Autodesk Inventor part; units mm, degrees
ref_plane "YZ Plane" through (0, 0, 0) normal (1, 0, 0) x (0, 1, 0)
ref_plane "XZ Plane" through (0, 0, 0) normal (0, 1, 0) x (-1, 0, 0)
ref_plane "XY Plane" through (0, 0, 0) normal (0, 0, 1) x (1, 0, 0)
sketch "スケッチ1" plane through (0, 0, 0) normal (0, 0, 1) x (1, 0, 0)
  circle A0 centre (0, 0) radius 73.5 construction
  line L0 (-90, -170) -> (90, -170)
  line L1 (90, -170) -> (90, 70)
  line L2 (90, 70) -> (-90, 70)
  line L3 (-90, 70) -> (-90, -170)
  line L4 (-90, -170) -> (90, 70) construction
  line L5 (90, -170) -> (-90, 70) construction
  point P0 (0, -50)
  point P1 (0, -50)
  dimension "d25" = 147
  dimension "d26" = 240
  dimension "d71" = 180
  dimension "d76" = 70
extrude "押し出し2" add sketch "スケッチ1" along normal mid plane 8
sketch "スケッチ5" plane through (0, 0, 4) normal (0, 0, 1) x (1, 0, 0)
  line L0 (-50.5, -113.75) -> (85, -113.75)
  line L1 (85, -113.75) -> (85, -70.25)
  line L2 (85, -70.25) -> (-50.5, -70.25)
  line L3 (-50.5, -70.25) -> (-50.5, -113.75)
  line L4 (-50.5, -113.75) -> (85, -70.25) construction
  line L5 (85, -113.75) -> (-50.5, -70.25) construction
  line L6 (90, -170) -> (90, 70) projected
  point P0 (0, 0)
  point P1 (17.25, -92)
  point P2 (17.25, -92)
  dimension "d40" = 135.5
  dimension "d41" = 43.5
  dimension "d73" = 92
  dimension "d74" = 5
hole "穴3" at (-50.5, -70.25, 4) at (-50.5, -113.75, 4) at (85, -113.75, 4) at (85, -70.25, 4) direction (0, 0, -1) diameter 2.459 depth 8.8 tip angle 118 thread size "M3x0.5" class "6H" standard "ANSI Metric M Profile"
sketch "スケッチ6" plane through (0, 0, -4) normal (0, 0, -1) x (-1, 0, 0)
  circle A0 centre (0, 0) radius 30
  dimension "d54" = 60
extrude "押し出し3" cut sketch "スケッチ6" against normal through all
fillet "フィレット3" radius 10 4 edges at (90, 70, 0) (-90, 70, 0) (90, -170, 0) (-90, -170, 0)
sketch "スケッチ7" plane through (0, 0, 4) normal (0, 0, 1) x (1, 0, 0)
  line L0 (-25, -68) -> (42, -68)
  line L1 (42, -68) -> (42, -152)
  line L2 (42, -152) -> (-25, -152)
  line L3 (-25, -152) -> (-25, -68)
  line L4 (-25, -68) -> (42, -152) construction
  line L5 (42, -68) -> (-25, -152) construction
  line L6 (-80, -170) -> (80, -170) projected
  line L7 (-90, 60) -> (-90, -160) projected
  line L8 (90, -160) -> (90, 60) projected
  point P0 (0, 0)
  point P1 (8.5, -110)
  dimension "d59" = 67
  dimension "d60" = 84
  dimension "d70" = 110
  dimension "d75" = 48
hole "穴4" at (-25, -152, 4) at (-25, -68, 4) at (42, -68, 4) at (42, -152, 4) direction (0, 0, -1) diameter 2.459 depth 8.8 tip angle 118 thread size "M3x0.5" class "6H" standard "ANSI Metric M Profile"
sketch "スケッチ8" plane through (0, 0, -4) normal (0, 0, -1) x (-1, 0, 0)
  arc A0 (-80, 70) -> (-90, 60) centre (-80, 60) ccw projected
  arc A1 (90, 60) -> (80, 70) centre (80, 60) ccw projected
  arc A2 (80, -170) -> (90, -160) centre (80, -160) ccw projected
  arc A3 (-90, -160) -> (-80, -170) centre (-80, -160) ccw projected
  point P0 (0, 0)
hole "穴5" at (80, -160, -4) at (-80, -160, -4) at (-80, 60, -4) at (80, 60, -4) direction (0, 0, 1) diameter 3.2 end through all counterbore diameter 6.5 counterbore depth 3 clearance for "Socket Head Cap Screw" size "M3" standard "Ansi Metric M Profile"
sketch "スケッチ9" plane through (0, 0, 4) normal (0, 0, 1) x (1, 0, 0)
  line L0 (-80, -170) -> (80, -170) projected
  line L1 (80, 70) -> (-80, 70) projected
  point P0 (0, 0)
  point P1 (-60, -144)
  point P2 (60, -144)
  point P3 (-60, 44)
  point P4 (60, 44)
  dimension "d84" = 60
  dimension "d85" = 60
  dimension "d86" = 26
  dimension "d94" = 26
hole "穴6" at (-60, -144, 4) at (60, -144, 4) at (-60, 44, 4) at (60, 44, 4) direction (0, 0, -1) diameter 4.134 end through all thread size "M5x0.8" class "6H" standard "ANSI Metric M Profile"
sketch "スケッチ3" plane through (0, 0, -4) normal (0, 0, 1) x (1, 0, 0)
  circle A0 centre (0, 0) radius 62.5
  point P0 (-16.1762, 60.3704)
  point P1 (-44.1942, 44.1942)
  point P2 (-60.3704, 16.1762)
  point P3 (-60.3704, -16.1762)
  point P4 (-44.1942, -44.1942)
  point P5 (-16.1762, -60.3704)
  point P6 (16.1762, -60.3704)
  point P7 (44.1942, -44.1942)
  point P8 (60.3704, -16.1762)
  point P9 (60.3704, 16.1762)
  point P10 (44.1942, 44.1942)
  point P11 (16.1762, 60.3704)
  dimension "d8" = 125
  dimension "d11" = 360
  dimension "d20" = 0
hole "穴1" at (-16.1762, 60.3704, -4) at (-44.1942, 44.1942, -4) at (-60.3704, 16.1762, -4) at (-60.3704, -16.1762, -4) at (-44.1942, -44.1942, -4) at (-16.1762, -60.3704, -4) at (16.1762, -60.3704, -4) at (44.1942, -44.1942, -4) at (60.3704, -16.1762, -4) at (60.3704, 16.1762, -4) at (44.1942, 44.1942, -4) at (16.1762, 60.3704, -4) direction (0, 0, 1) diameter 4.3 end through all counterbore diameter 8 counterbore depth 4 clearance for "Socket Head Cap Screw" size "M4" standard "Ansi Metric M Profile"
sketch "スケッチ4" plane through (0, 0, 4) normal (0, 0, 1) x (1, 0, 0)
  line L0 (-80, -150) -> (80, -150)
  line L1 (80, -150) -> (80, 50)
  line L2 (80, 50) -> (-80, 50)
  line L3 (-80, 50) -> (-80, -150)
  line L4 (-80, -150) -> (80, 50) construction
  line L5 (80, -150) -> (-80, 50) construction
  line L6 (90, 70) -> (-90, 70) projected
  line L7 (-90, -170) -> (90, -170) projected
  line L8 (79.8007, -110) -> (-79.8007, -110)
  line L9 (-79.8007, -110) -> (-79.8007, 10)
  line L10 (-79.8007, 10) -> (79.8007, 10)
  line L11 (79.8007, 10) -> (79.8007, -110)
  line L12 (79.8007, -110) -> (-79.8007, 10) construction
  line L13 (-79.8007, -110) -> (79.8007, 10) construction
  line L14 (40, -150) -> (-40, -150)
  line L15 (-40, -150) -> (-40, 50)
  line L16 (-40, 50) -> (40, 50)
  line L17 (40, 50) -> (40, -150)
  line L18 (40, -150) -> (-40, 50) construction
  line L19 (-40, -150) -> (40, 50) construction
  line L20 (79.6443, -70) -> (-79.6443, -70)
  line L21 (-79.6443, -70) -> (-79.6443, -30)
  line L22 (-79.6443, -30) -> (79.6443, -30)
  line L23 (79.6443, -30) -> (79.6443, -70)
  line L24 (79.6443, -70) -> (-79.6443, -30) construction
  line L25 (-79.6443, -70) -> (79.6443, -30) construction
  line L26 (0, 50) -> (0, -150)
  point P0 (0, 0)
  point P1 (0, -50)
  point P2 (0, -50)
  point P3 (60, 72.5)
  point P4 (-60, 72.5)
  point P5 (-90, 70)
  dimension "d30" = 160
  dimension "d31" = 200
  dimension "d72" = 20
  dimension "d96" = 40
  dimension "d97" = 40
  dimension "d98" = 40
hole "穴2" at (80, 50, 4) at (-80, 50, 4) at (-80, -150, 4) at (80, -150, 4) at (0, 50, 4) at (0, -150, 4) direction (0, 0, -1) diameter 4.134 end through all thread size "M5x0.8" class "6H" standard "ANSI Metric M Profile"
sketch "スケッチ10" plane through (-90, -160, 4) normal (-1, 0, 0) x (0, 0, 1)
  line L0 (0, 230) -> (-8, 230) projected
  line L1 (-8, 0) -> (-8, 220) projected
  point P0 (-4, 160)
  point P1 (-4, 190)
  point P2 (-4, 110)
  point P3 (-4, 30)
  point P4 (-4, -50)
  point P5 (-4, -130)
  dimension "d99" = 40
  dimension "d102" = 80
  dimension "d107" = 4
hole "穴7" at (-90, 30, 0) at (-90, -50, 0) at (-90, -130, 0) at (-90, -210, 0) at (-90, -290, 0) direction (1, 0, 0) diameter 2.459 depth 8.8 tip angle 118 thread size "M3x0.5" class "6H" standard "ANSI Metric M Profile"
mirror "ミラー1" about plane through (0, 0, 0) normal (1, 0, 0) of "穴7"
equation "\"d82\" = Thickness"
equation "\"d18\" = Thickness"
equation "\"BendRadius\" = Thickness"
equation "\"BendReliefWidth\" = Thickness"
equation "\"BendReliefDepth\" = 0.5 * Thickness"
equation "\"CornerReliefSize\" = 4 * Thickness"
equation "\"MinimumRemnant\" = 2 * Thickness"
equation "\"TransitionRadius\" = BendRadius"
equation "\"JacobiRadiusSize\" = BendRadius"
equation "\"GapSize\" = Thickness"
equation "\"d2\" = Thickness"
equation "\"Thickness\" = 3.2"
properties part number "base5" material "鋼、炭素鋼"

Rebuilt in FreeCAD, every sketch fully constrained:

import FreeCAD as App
import Part
import Sketcher
Q = App.Units.Quantity


def edges_at(feature, points):
    """Names of the edges that pass closest to the given points."""
    edges = feature.Shape.Edges
    near = lambda p: min(range(len(edges)), key=lambda i: edges[i].distToShape(Part.Vertex(*p))[0])
    return sorted({f"Edge{near(p) + 1}" for p in points})


def add_polygon(sketch, points):
    """Adds a closed chain of lines whose ends are joined by coincident constraints."""
    first, n = sketch.GeometryCount, len(points)
    for a, b in zip(points, points[1:] + points[:1]):
        sketch.addGeometry(Part.LineSegment(App.Vector(*a, 0), App.Vector(*b, 0)), False)
    for i in range(n):
        sketch.addConstraint(Sketcher.Constraint("Coincident", first + i, 2, first + (i + 1) % n, 1))

doc = App.newDocument("Part")
body = doc.addObject("PartDesign::Body", "Body")

sketch1 = doc.addObject("Sketcher::SketchObject", "Sketch")
body.addObject(sketch1)
sketch1.AttachmentSupport = (doc.XY_Plane, [""])
sketch1.MapMode = "FlatFace"
add_polygon(sketch1, [(-90, 70), (-90, -170), (90, -170), (90, 70)])
sketch1.addConstraint(Sketcher.Constraint("Vertical", 0))
sketch1.addConstraint(Sketcher.Constraint("Horizontal", 1))
sketch1.addConstraint(Sketcher.Constraint("Vertical", 2))
sketch1.addConstraint(Sketcher.Constraint("Horizontal", 3))
sketch1.addConstraint(Sketcher.Constraint("DistanceX", 1, 1, 1, 2, Q("180 mm")))
sketch1.addConstraint(Sketcher.Constraint("DistanceY", 0, 2, 0, 1, Q("240 mm")))
sketch1.addConstraint(Sketcher.Constraint("DistanceY", -1, 1, 2, 2, Q("70 mm")))
sketch1.addConstraint(Sketcher.Constraint("DistanceX", 0, 2, -1, 1, Q("90 mm")))
pad1 = doc.addObject("PartDesign::Pad", "Pad")
body.addObject(pad1)
pad1.Profile = sketch1
pad1.Length = 8
pad1.Midplane = True

sketch2 = doc.addObject("Sketcher::SketchObject", "Sketch001")
body.addObject(sketch2)
sketch2.AttachmentSupport = (doc.XY_Plane, [""])
sketch2.MapMode = "FlatFace"
sketch2.AttachmentOffset = App.Placement(App.Vector(0, 0, 4), App.Rotation())
sketch2.addGeometry(Part.Circle(App.Vector(-50.5, -70.2, 0), App.Vector(0, 0, 1), 1.2), False)
sketch2.addGeometry(Part.Circle(App.Vector(-50.5, -113.8, 0), App.Vector(0, 0, 1), 1.2), False)
sketch2.addGeometry(Part.Circle(App.Vector(85, -113.8, 0), App.Vector(0, 0, 1), 1.2), False)
sketch2.addGeometry(Part.Circle(App.Vector(85, -70.2, 0), App.Vector(0, 0, 1), 1.2), False)
sketch2.addConstraint(Sketcher.Constraint("Equal", 0, 1))
sketch2.addConstraint(Sketcher.Constraint("Equal", 1, 2))
sketch2.addConstraint(Sketcher.Constraint("Equal", 2, 3))
sketch2.addConstraint(Sketcher.Constraint("Horizontal", 1, 3, 2, 3))
sketch2.addConstraint(Sketcher.Constraint("Horizontal", 0, 3, 3, 3))
sketch2.addConstraint(Sketcher.Constraint("Vertical", 0, 3, 1, 3))
sketch2.addConstraint(Sketcher.Constraint("Vertical", 2, 3, 3, 3))
sketch2.addConstraint(Sketcher.Constraint("Diameter", 0, Q("2.459 mm")))
sketch2.addConstraint(Sketcher.Constraint("DistanceX", -1, 1, 2, 3, Q("85 mm")))
sketch2.addConstraint(Sketcher.Constraint("DistanceX", 0, 3, -1, 1, Q("50.5 mm")))
sketch2.addConstraint(Sketcher.Constraint("DistanceY", 1, 3, 0, 3, Q("43.5 mm")))
sketch2.addConstraint(Sketcher.Constraint("DistanceY", 0, 3, -1, 1, Q("70.25 mm")))
doc.recompute()
hole = doc.addObject("PartDesign::Hole", "Hole")
body.addObject(hole)
hole.Profile = sketch2
hole.ThreadType = "None"
hole.Diameter = 2.459
hole.DepthType = "Dimension"
hole.Depth = 8.8
hole.DrillPoint = "Angled"
hole.DrillPointAngle = 118

sketch3 = doc.addObject("Sketcher::SketchObject", "Sketch002")
body.addObject(sketch3)
sketch3.AttachmentSupport = (doc.XY_Plane, [""])
sketch3.MapMode = "FlatFace"
sketch3.AttachmentOffset = App.Placement(App.Vector(0, 0, -4), App.Rotation())
sketch3.addGeometry(Part.Circle(App.Vector(0, 0, 0), App.Vector(0, 0, 1), 30), False)
sketch3.addConstraint(Sketcher.Constraint("Coincident", 0, 3, -1, 1))
sketch3.addConstraint(Sketcher.Constraint("Diameter", 0, Q("60 mm")))
pocket1 = doc.addObject("PartDesign::Pocket", "Pocket")
body.addObject(pocket1)
pocket1.Profile = sketch3
pocket1.Type = "ThroughAll"
pocket1.Reversed = True
doc.recompute()

fillet = doc.addObject("PartDesign::Fillet", "Fillet")
body.addObject(fillet)
fillet.Base = (pocket1, edges_at(pocket1, [
    (90, 70, 0),
    (-90, 70, 0),
    (90, -170, 0),
    (-90, -170, 0),
]))
fillet.Radius = 10

sketch4 = doc.addObject("Sketcher::SketchObject", "Sketch003")
body.addObject(sketch4)
sketch4.AttachmentSupport = (doc.XY_Plane, [""])
sketch4.MapMode = "FlatFace"
sketch4.AttachmentOffset = App.Placement(App.Vector(0, 0, 4), App.Rotation())
sketch4.addGeometry(Part.Circle(App.Vector(-25, -152, 0), App.Vector(0, 0, 1), 1.2), False)
sketch4.addGeometry(Part.Circle(App.Vector(-25, -68, 0), App.Vector(0, 0, 1), 1.2), False)
sketch4.addGeometry(Part.Circle(App.Vector(42, -68, 0), App.Vector(0, 0, 1), 1.2), False)
sketch4.addGeometry(Part.Circle(App.Vector(42, -152, 0), App.Vector(0, 0, 1), 1.2), False)
sketch4.addConstraint(Sketcher.Constraint("Equal", 0, 1))
sketch4.addConstraint(Sketcher.Constraint("Equal", 1, 2))
sketch4.addConstraint(Sketcher.Constraint("Equal", 2, 3))
sketch4.addConstraint(Sketcher.Constraint("Horizontal", 1, 3, 2, 3))
sketch4.addConstraint(Sketcher.Constraint("Horizontal", 0, 3, 3, 3))
sketch4.addConstraint(Sketcher.Constraint("Vertical", 0, 3, 1, 3))
sketch4.addConstraint(Sketcher.Constraint("Vertical", 2, 3, 3, 3))
sketch4.addConstraint(Sketcher.Constraint("Diameter", 0, Q("2.459 mm")))
sketch4.addConstraint(Sketcher.Constraint("DistanceX", 0, 3, -1, 1, Q("25 mm")))
sketch4.addConstraint(Sketcher.Constraint("DistanceY", 0, 3, -1, 1, Q("152 mm")))
sketch4.addConstraint(Sketcher.Constraint("DistanceY", 1, 3, -1, 1, Q("68 mm")))
sketch4.addConstraint(Sketcher.Constraint("DistanceX", -1, 1, 2, 3, Q("42 mm")))
doc.recompute()
hole2 = doc.addObject("PartDesign::Hole", "Hole001")
body.addObject(hole2)
hole2.Profile = sketch4
hole2.ThreadType = "None"
hole2.Diameter = 2.459
hole2.DepthType = "Dimension"
hole2.Depth = 8.8
hole2.DrillPoint = "Angled"
hole2.DrillPointAngle = 118

sketch5 = doc.addObject("Sketcher::SketchObject", "Sketch004")
body.addObject(sketch5)
sketch5.AttachmentSupport = (doc.XY_Plane, [""])
sketch5.MapMode = "FlatFace"
sketch5.AttachmentOffset = App.Placement(App.Vector(0, 0, -4), App.Rotation())
sketch5.addGeometry(Part.Circle(App.Vector(80, -160, 0), App.Vector(0, 0, 1), 1.6), False)
sketch5.addGeometry(Part.Circle(App.Vector(-80, -160, 0), App.Vector(0, 0, 1), 1.6), False)
sketch5.addGeometry(Part.Circle(App.Vector(-80, 60, 0), App.Vector(0, 0, 1), 1.6), False)
sketch5.addGeometry(Part.Circle(App.Vector(80, 60, 0), App.Vector(0, 0, 1), 1.6), False)
sketch5.addConstraint(Sketcher.Constraint("Equal", 0, 1))
sketch5.addConstraint(Sketcher.Constraint("Equal", 1, 2))
sketch5.addConstraint(Sketcher.Constraint("Equal", 2, 3))
sketch5.addConstraint(Sketcher.Constraint("Symmetric", 0, 3, 1, 3, -2))
sketch5.addConstraint(Sketcher.Constraint("Symmetric", 2, 3, 3, 3, -2))
sketch5.addConstraint(Sketcher.Constraint("Vertical", 1, 3, 2, 3))
sketch5.addConstraint(Sketcher.Constraint("Diameter", 0, Q("3.2 mm")))
sketch5.addConstraint(Sketcher.Constraint("DistanceX", -1, 1, 0, 3, Q("80 mm")))
sketch5.addConstraint(Sketcher.Constraint("DistanceY", 0, 3, -1, 1, Q("160 mm")))
sketch5.addConstraint(Sketcher.Constraint("DistanceY", -1, 1, 2, 3, Q("60 mm")))
doc.recompute()
hole3 = doc.addObject("PartDesign::Hole", "Hole002")
body.addObject(hole3)
hole3.Profile = sketch5
hole3.ThreadType = "None"
hole3.Diameter = 3.2
hole3.DepthType = "ThroughAll"
hole3.HoleCutType = "Counterbore"
hole3.HoleCutDiameter = 6.5
hole3.HoleCutDepth = 3
hole3.Reversed = True

sketch6 = doc.addObject("Sketcher::SketchObject", "Sketch005")
body.addObject(sketch6)
sketch6.AttachmentSupport = (doc.XY_Plane, [""])
sketch6.MapMode = "FlatFace"
sketch6.AttachmentOffset = App.Placement(App.Vector(0, 0, 4), App.Rotation())
sketch6.addGeometry(Part.Circle(App.Vector(-60, -144, 0), App.Vector(0, 0, 1), 2.1), False)
sketch6.addGeometry(Part.Circle(App.Vector(60, -144, 0), App.Vector(0, 0, 1), 2.1), False)
sketch6.addGeometry(Part.Circle(App.Vector(-60, 44, 0), App.Vector(0, 0, 1), 2.1), False)
sketch6.addGeometry(Part.Circle(App.Vector(60, 44, 0), App.Vector(0, 0, 1), 2.1), False)
sketch6.addConstraint(Sketcher.Constraint("Equal", 0, 1))
sketch6.addConstraint(Sketcher.Constraint("Equal", 1, 2))
sketch6.addConstraint(Sketcher.Constraint("Equal", 2, 3))
sketch6.addConstraint(Sketcher.Constraint("Symmetric", 0, 3, 1, 3, -2))
sketch6.addConstraint(Sketcher.Constraint("Symmetric", 2, 3, 3, 3, -2))
sketch6.addConstraint(Sketcher.Constraint("Vertical", 0, 3, 2, 3))
sketch6.addConstraint(Sketcher.Constraint("Diameter", 0, Q("4.134 mm")))
sketch6.addConstraint(Sketcher.Constraint("DistanceX", 0, 3, -1, 1, Q("60 mm")))
sketch6.addConstraint(Sketcher.Constraint("DistanceY", 0, 3, -1, 1, Q("144 mm")))
sketch6.addConstraint(Sketcher.Constraint("DistanceY", -1, 1, 2, 3, Q("44 mm")))
doc.recompute()
hole4 = doc.addObject("PartDesign::Hole", "Hole003")
body.addObject(hole4)
hole4.Profile = sketch6
hole4.ThreadType = "None"
hole4.Diameter = 4.134
hole4.DepthType = "ThroughAll"

sketch7 = doc.addObject("Sketcher::SketchObject", "Sketch006")
body.addObject(sketch7)
sketch7.AttachmentSupport = (doc.XY_Plane, [""])
sketch7.MapMode = "FlatFace"
sketch7.AttachmentOffset = App.Placement(App.Vector(0, 0, -4), App.Rotation())
sketch7.addGeometry(Part.Circle(App.Vector(-16.2, 60.4, 0), App.Vector(0, 0, 1), 2.1), False)
sketch7.addGeometry(Part.Circle(App.Vector(-44.2, 44.2, 0), App.Vector(0, 0, 1), 2.1), False)
sketch7.addGeometry(Part.Circle(App.Vector(-60.4, 16.2, 0), App.Vector(0, 0, 1), 2.1), False)
sketch7.addGeometry(Part.Circle(App.Vector(-60.4, -16.2, 0), App.Vector(0, 0, 1), 2.1), False)
sketch7.addGeometry(Part.Circle(App.Vector(-44.2, -44.2, 0), App.Vector(0, 0, 1), 2.1), False)
sketch7.addGeometry(Part.Circle(App.Vector(-16.2, -60.4, 0), App.Vector(0, 0, 1), 2.1), False)
sketch7.addGeometry(Part.Circle(App.Vector(16.2, -60.4, 0), App.Vector(0, 0, 1), 2.1), False)
sketch7.addGeometry(Part.Circle(App.Vector(44.2, -44.2, 0), App.Vector(0, 0, 1), 2.1), False)
sketch7.addGeometry(Part.Circle(App.Vector(60.4, -16.2, 0), App.Vector(0, 0, 1), 2.1), False)
sketch7.addGeometry(Part.Circle(App.Vector(60.4, 16.2, 0), App.Vector(0, 0, 1), 2.1), False)
sketch7.addGeometry(Part.Circle(App.Vector(44.2, 44.2, 0), App.Vector(0, 0, 1), 2.1), False)
sketch7.addGeometry(Part.Circle(App.Vector(16.2, 60.4, 0), App.Vector(0, 0, 1), 2.1), False)
sketch7.addConstraint(Sketcher.Constraint("Equal", 0, 1))
sketch7.addConstraint(Sketcher.Constraint("Equal", 1, 2))
sketch7.addConstraint(Sketcher.Constraint("Equal", 2, 3))
sketch7.addConstraint(Sketcher.Constraint("Equal", 3, 4))
sketch7.addConstraint(Sketcher.Constraint("Equal", 4, 5))
sketch7.addConstraint(Sketcher.Constraint("Equal", 5, 6))
sketch7.addConstraint(Sketcher.Constraint("Equal", 6, 7))
sketch7.addConstraint(Sketcher.Constraint("Equal", 7, 8))
sketch7.addConstraint(Sketcher.Constraint("Equal", 8, 9))
sketch7.addConstraint(Sketcher.Constraint("Equal", 9, 10))
sketch7.addConstraint(Sketcher.Constraint("Equal", 10, 11))
sketch7.addConstraint(Sketcher.Constraint("Symmetric", 0, 3, 6, 3, -1, 1))
sketch7.addConstraint(Sketcher.Constraint("Symmetric", 1, 3, 7, 3, -1, 1))
sketch7.addConstraint(Sketcher.Constraint("Symmetric", 2, 3, 8, 3, -1, 1))
sketch7.addConstraint(Sketcher.Constraint("Symmetric", 3, 3, 9, 3, -1, 1))
sketch7.addConstraint(Sketcher.Constraint("Symmetric", 4, 3, 10, 3, -1, 1))
sketch7.addConstraint(Sketcher.Constraint("Symmetric", 5, 3, 11, 3, -1, 1))
sketch7.addConstraint(Sketcher.Constraint("Symmetric", 5, 3, 6, 3, -2))
sketch7.addConstraint(Sketcher.Constraint("Symmetric", 4, 3, 7, 3, -2))
sketch7.addConstraint(Sketcher.Constraint("Symmetric", 3, 3, 8, 3, -2))
sketch7.addConstraint(Sketcher.Constraint("Diameter", 0, Q("4.3 mm")))
sketch7.addConstraint(Sketcher.Constraint("DistanceX", 1, 3, 0, 3, Q("28.018 mm")))
sketch7.addConstraint(Sketcher.Constraint("DistanceY", 2, 3, 1, 3, Q("28.018 mm")))
sketch7.addConstraint(Sketcher.Constraint("DistanceX", 0, 3, -1, 1, Q("16.1762 mm")))
sketch7.addConstraint(Sketcher.Constraint("DistanceY", -1, 1, 0, 3, Q("60.3704 mm")))
sketch7.addConstraint(Sketcher.Constraint("DistanceY", -1, 1, 1, 3, Q("44.1942 mm")))
sketch7.addConstraint(Sketcher.Constraint("DistanceX", 2, 3, -1, 1, Q("60.3704 mm")))
doc.recompute()
hole5 = doc.addObject("PartDesign::Hole", "Hole004")
body.addObject(hole5)
hole5.Profile = sketch7
hole5.ThreadType = "None"
hole5.Diameter = 4.3
hole5.DepthType = "ThroughAll"
hole5.HoleCutType = "Counterbore"
hole5.HoleCutDiameter = 8
hole5.HoleCutDepth = 4
hole5.Reversed = True

sketch8 = doc.addObject("Sketcher::SketchObject", "Sketch007")
body.addObject(sketch8)
sketch8.AttachmentSupport = (doc.XY_Plane, [""])
sketch8.MapMode = "FlatFace"
sketch8.AttachmentOffset = App.Placement(App.Vector(0, 0, 4), App.Rotation())
sketch8.addGeometry(Part.Circle(App.Vector(80, 50, 0), App.Vector(0, 0, 1), 2.1), False)
sketch8.addGeometry(Part.Circle(App.Vector(-80, 50, 0), App.Vector(0, 0, 1), 2.1), False)
sketch8.addGeometry(Part.Circle(App.Vector(-80, -150, 0), App.Vector(0, 0, 1), 2.1), False)
sketch8.addGeometry(Part.Circle(App.Vector(80, -150, 0), App.Vector(0, 0, 1), 2.1), False)
sketch8.addGeometry(Part.Circle(App.Vector(0, 50, 0), App.Vector(0, 0, 1), 2.1), False)
sketch8.addGeometry(Part.Circle(App.Vector(0, -150, 0), App.Vector(0, 0, 1), 2.1), False)
sketch8.addConstraint(Sketcher.Constraint("Equal", 0, 1))
sketch8.addConstraint(Sketcher.Constraint("Equal", 1, 2))
sketch8.addConstraint(Sketcher.Constraint("Equal", 2, 3))
sketch8.addConstraint(Sketcher.Constraint("Equal", 3, 4))
sketch8.addConstraint(Sketcher.Constraint("Equal", 4, 5))
sketch8.addConstraint(Sketcher.Constraint("Symmetric", 0, 3, 1, 3, -2))
sketch8.addConstraint(Sketcher.Constraint("Symmetric", 2, 3, 3, 3, -2))
sketch8.addConstraint(Sketcher.Constraint("PointOnObject", 4, 3, -2))
sketch8.addConstraint(Sketcher.Constraint("PointOnObject", 5, 3, -2))
sketch8.addConstraint(Sketcher.Constraint("Horizontal", 1, 3, 4, 3))
sketch8.addConstraint(Sketcher.Constraint("Horizontal", 3, 3, 5, 3))
sketch8.addConstraint(Sketcher.Constraint("Vertical", 1, 3, 2, 3))
sketch8.addConstraint(Sketcher.Constraint("Diameter", 0, Q("4.134 mm")))
sketch8.addConstraint(Sketcher.Constraint("DistanceX", -1, 1, 0, 3, Q("80 mm")))
sketch8.addConstraint(Sketcher.Constraint("DistanceY", -1, 1, 0, 3, Q("50 mm")))
sketch8.addConstraint(Sketcher.Constraint("DistanceY", 2, 3, -1, 1, Q("150 mm")))
doc.recompute()
hole6 = doc.addObject("PartDesign::Hole", "Hole005")
body.addObject(hole6)
hole6.Profile = sketch8
hole6.ThreadType = "None"
hole6.Diameter = 4.134
hole6.DepthType = "ThroughAll"

sketch9 = doc.addObject("Sketcher::SketchObject", "Sketch008")
body.addObject(sketch9)
sketch9.AttachmentSupport = (doc.YZ_Plane, [""])
sketch9.MapMode = "FlatFace"
sketch9.AttachmentOffset = App.Placement(App.Vector(0, 0, -90), App.Rotation())
sketch9.addGeometry(Part.Circle(App.Vector(30, 0, 0), App.Vector(0, 0, 1), 1.2), False)
sketch9.addGeometry(Part.Circle(App.Vector(-50, 0, 0), App.Vector(0, 0, 1), 1.2), False)
sketch9.addGeometry(Part.Circle(App.Vector(-130, 0, 0), App.Vector(0, 0, 1), 1.2), False)
sketch9.addGeometry(Part.Circle(App.Vector(-210, 0, 0), App.Vector(0, 0, 1), 1.2), False)
sketch9.addGeometry(Part.Circle(App.Vector(-290, 0, 0), App.Vector(0, 0, 1), 1.2), False)
sketch9.addConstraint(Sketcher.Constraint("Equal", 0, 1))
sketch9.addConstraint(Sketcher.Constraint("Equal", 1, 2))
sketch9.addConstraint(Sketcher.Constraint("Equal", 2, 3))
sketch9.addConstraint(Sketcher.Constraint("Equal", 3, 4))
sketch9.addConstraint(Sketcher.Constraint("PointOnObject", 0, 3, -1))
sketch9.addConstraint(Sketcher.Constraint("PointOnObject", 1, 3, -1))
sketch9.addConstraint(Sketcher.Constraint("PointOnObject", 2, 3, -1))
sketch9.addConstraint(Sketcher.Constraint("PointOnObject", 3, 3, -1))
sketch9.addConstraint(Sketcher.Constraint("PointOnObject", 4, 3, -1))
sketch9.addConstraint(Sketcher.Constraint("Diameter", 0, Q("2.459 mm")))
sketch9.addConstraint(Sketcher.Constraint("DistanceX", -1, 1, 0, 3, Q("30 mm")))
sketch9.addConstraint(Sketcher.Constraint("DistanceX", 1, 3, -1, 1, Q("50 mm")))
sketch9.addConstraint(Sketcher.Constraint("DistanceX", 2, 3, -1, 1, Q("130 mm")))
sketch9.addConstraint(Sketcher.Constraint("DistanceX", 3, 3, -1, 1, Q("210 mm")))
sketch9.addConstraint(Sketcher.Constraint("DistanceX", 4, 3, -1, 1, Q("290 mm")))
doc.recompute()
hole7 = doc.addObject("PartDesign::Hole", "Hole006")
body.addObject(hole7)
hole7.Profile = sketch9
hole7.ThreadType = "None"
hole7.Diameter = 2.459
hole7.DepthType = "Dimension"
hole7.Depth = 8.8
hole7.DrillPoint = "Angled"
hole7.DrillPointAngle = 118
hole7.Reversed = True
doc.recompute()

mirrored = doc.addObject("PartDesign::Mirrored", "Mirrored")
body.addObject(mirrored)
mirrored.Originals = [hole7]
mirrored.MirrorPlane = (doc.YZ_Plane, [""])
body.Tip = mirrored

doc.recompute()
